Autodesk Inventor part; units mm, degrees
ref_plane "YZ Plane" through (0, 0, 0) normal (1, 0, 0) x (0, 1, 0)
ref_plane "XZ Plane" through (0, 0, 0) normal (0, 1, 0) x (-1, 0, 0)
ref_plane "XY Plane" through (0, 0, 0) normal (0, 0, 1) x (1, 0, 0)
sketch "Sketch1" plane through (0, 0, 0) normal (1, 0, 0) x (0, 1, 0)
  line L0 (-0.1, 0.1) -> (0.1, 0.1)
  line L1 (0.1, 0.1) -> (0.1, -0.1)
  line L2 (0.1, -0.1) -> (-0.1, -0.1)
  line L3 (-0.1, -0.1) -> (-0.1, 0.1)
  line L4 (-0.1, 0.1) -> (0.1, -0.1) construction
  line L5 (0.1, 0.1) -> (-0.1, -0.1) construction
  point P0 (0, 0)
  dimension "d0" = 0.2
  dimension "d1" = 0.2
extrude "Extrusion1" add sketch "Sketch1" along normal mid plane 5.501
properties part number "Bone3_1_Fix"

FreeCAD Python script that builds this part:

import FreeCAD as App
import Part
import Sketcher
from FreeCAD import Vector


def add_polygon(sketch, points):
    """Adds a closed chain of lines whose ends are joined by coincident constraints."""
    first, n = sketch.GeometryCount, len(points)
    for a, b in zip(points, points[1:] + points[:1]):
        sketch.addGeometry(Part.LineSegment(App.Vector(*a, 0), App.Vector(*b, 0)), False)
    for i in range(n):
        sketch.addConstraint(Sketcher.Constraint("Coincident", first + i, 2, first + (i + 1) % n, 1))

doc = App.newDocument("Part")
body = doc.addObject("PartDesign::Body", "Body")

sketch1 = body.newObject("Sketcher::SketchObject", "Sketch")
sketch1.AttachmentSupport = (doc.getObject("YZ_Plane"), [""])
sketch1.MapMode = "FlatFace"
add_polygon(sketch1, [(0.1, 0.1), (-0.1, 0.1), (-0.1, -0.1), (0.1, -0.1)])
sketch1.addConstraint(Sketcher.Constraint("Horizontal", 0))
sketch1.addConstraint(Sketcher.Constraint("Vertical", 1))
sketch1.addConstraint(Sketcher.Constraint("Horizontal", 2))
sketch1.addConstraint(Sketcher.Constraint("Vertical", 3))
sketch1.addConstraint(Sketcher.Constraint("Symmetric", 0, 2, 2, 2, -1, 1))
sketch1.addConstraint(Sketcher.Constraint("Equal", 2, 1))
sketch1.addConstraint(Sketcher.Constraint("DistanceX", 0, 2, 0, 1, 0.2))
pad1 = body.newObject("PartDesign::Pad", "Pad")
pad1.Profile = sketch1
pad1.Length = 5.501
pad1.Midplane = True

doc.recompute()
